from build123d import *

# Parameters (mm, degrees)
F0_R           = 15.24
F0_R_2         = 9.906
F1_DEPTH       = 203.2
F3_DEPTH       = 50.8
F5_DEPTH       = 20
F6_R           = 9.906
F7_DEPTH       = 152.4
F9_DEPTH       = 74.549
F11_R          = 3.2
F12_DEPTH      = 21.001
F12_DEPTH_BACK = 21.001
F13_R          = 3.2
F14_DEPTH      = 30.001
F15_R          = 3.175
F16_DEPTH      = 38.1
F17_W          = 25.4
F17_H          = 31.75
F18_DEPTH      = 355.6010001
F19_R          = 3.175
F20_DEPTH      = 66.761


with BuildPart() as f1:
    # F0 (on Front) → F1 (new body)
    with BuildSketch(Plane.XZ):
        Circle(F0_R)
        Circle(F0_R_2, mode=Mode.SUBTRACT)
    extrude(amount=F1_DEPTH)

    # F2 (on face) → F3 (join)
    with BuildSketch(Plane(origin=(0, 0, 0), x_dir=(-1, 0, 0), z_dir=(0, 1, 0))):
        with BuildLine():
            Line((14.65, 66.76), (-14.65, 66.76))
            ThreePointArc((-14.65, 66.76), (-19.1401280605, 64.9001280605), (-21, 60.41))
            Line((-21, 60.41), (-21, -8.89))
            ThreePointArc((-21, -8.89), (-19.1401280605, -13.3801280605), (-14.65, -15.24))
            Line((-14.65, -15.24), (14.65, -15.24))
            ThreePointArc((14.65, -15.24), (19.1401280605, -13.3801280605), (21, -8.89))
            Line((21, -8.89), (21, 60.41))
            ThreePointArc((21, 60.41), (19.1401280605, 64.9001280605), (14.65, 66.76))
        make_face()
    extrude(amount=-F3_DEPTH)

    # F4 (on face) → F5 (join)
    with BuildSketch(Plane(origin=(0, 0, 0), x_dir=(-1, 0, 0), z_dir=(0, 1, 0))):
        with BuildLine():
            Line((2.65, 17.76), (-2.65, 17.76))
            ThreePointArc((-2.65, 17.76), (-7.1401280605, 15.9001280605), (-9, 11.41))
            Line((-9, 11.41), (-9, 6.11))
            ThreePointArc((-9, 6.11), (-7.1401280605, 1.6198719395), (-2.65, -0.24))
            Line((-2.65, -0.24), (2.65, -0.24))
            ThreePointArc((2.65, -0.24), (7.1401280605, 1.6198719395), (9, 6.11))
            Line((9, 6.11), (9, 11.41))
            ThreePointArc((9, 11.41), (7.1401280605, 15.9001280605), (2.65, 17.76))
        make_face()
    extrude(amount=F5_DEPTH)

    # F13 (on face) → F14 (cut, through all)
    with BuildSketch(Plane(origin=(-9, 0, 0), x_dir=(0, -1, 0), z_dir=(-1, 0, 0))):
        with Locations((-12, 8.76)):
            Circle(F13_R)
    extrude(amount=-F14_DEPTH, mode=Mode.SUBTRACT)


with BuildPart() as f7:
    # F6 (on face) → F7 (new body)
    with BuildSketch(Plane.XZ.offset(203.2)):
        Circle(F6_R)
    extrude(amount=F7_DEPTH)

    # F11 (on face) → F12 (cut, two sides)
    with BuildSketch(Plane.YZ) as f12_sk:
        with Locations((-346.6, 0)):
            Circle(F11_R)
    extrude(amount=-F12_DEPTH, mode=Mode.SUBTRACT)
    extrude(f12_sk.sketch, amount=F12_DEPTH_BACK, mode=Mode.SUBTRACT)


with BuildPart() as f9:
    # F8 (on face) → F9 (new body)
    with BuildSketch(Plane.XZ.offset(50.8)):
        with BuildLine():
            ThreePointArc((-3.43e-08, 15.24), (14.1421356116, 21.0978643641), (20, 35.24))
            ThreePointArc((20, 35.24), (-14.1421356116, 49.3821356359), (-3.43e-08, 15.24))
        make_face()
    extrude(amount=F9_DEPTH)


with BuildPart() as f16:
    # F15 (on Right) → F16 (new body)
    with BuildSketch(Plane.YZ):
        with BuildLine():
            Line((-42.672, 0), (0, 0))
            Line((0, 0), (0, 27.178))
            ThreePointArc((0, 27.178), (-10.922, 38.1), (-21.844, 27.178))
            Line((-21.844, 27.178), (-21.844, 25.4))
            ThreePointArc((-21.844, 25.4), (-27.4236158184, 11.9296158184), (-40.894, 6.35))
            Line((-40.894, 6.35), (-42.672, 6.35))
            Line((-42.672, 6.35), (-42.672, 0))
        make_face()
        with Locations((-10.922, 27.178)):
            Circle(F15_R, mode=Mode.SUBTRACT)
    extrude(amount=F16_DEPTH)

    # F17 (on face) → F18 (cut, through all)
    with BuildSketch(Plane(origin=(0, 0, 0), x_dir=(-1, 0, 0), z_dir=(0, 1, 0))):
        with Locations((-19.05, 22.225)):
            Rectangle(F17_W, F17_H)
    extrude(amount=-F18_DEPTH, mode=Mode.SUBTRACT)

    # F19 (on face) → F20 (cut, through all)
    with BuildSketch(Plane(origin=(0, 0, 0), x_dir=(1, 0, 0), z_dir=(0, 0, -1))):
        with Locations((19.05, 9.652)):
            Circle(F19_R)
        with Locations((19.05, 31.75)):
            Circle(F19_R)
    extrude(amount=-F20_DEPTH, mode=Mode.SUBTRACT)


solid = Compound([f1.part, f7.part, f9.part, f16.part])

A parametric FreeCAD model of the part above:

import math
import FreeCAD as App
import Part
import Sketcher
from FreeCAD import Vector
Q = App.Units.Quantity


def add_polygon(sketch, points):
    """Adds a closed chain of lines whose ends are joined by coincident constraints."""
    first, n = sketch.GeometryCount, len(points)
    for a, b in zip(points, points[1:] + points[:1]):
        sketch.addGeometry(Part.LineSegment(App.Vector(*a, 0), App.Vector(*b, 0)), False)
    for i in range(n):
        sketch.addConstraint(Sketcher.Constraint("Coincident", first + i, 2, first + (i + 1) % n, 1))

doc = App.newDocument("Part")
body = doc.addObject("PartDesign::Body", "Body")

# Sketch on XZ plane
sketch1 = body.newObject("Sketcher::SketchObject", "Sketch")
sketch1.AttachmentSupport = (doc.getObject("XZ_Plane"), [""])
sketch1.MapMode = "FlatFace"
sketch1.addGeometry([
    Part.Circle(Vector(0, 0, 0), Vector(0, 0, 1), 15),
    Part.Circle(Vector(0, 0, 0), Vector(0, 0, 1), 10),
], False)
sketch1.addConstraint([
    Sketcher.Constraint("Coincident", 0, 3, -1, 1),
    Sketcher.Constraint("Coincident", 1, 3, -1, 1),
    Sketcher.Constraint("Diameter", 0, Q("1.2 in")),
    Sketcher.Constraint("Diameter", 1, Q("0.78 in")),
])
pad1 = body.newObject("PartDesign::Pad", "Pad")
pad1.Profile = sketch1
pad1.Length = Q("8 in")

# Sketch on XZ plane
sketch2 = body.newObject("Sketcher::SketchObject", "Sketch001")
sketch2.AttachmentSupport = (doc.getObject("XZ_Plane"), [""])
sketch2.MapMode = "FlatFace"
sketch2.addGeometry([
    Part.LineSegment(Vector(-15, 67, 0), Vector(15, 67, 0)),  # 0
    Part.ArcOfCircle(Part.Circle(Vector(15, 60, 0), Vector(0, 0, 1), 6), math.radians(0), math.radians(90)),  # 1
    Part.LineSegment(Vector(21, 60, 0), Vector(21, -9, 0)),  # 2
    Part.ArcOfCircle(Part.Circle(Vector(15, -9, 0), Vector(0, 0, 1), 6), math.radians(-90), math.radians(0)),  # 3
    Part.LineSegment(Vector(15, -15, 0), Vector(-15, -15, 0)),  # 4
    Part.ArcOfCircle(Part.Circle(Vector(-15, -9, 0), Vector(0, 0, 1), 6), math.radians(180), math.radians(270)),  # 5
    Part.LineSegment(Vector(-21, -9, 0), Vector(-21, 60, 0)),  # 6
    Part.ArcOfCircle(Part.Circle(Vector(-15, 60, 0), Vector(0, 0, 1), 6), math.radians(90), math.radians(180)),  # 7
], False)
sketch2.addConstraint([
    Sketcher.Constraint("Tangent", 0, 2, 1, 2),
    Sketcher.Constraint("Tangent", 1, 1, 2, 1),
    Sketcher.Constraint("Tangent", 2, 2, 3, 2),
    Sketcher.Constraint("Tangent", 3, 1, 4, 1),
    Sketcher.Constraint("Tangent", 4, 2, 5, 2),
    Sketcher.Constraint("Tangent", 5, 1, 6, 1),
    Sketcher.Constraint("Tangent", 6, 2, 7, 2),
    Sketcher.Constraint("Tangent", 7, 1, 0, 1),
    Sketcher.Constraint("Horizontal", 0),
    Sketcher.Constraint("Vertical", 2),
    Sketcher.Constraint("Horizontal", 4),
    Sketcher.Constraint("Vertical", 6),
    Sketcher.Constraint("Equal", 1, 3),
    Sketcher.Constraint("Equal", 3, 5),
    Sketcher.Constraint("Equal", 5, 7),
    Sketcher.Constraint("Radius", 1, Q("0.25 in")),
    Sketcher.Constraint("DistanceY", 3, 1, -1, 1, Q("0.6 in")),
    Sketcher.Constraint("DistanceX", 0, 1, 0, 2, Q("29.3 mm")),
    Sketcher.Constraint("DistanceY", 2, 2, 2, 1, Q("69.3 mm")),
    Sketcher.Constraint("DistanceX", -1, 1, 1, 3, Q("14.65 mm")),
])
pad2 = body.newObject("PartDesign::Pad", "Pad001")
pad2.Profile = sketch2
pad2.Length = Q("2 in")

# Sketch on XZ plane
sketch3 = body.newObject("Sketcher::SketchObject", "Sketch002")
sketch3.AttachmentSupport = (doc.getObject("XZ_Plane"), [""])
sketch3.MapMode = "FlatFace"
sketch3.addGeometry([
    Part.LineSegment(Vector(-3, 18, 0), Vector(3, 18, 0)),  # 0
    Part.ArcOfCircle(Part.Circle(Vector(3, 11, 0), Vector(0, 0, 1), 6), math.radians(0), math.radians(90)),  # 1
    Part.LineSegment(Vector(9, 11, 0), Vector(9, 6, 0)),  # 2
    Part.ArcOfCircle(Part.Circle(Vector(3, 6, 0), Vector(0, 0, 1), 6), math.radians(-90), math.radians(0)),  # 3
    Part.LineSegment(Vector(3, 0, 0), Vector(-3, 0, 0)),  # 4
    Part.ArcOfCircle(Part.Circle(Vector(-3, 6, 0), Vector(0, 0, 1), 6), math.radians(180), math.radians(270)),  # 5
    Part.LineSegment(Vector(-9, 6, 0), Vector(-9, 11, 0)),  # 6
    Part.ArcOfCircle(Part.Circle(Vector(-3, 11, 0), Vector(0, 0, 1), 6), math.radians(90), math.radians(180)),  # 7
], False)
sketch3.addConstraint([
    Sketcher.Constraint("Tangent", 0, 2, 1, 2),
    Sketcher.Constraint("Tangent", 1, 1, 2, 1),
    Sketcher.Constraint("Tangent", 2, 2, 3, 2),
    Sketcher.Constraint("Tangent", 3, 1, 4, 1),
    Sketcher.Constraint("Tangent", 4, 2, 5, 2),
    Sketcher.Constraint("Tangent", 5, 1, 6, 1),
    Sketcher.Constraint("Tangent", 6, 2, 7, 2),
    Sketcher.Constraint("Tangent", 7, 1, 0, 1),
    Sketcher.Constraint("Horizontal", 0),
    Sketcher.Constraint("Vertical", 2),
    Sketcher.Constraint("Horizontal", 4),
    Sketcher.Constraint("Vertical", 6),
    Sketcher.Constraint("Equal", 1, 3),
    Sketcher.Constraint("Equal", 3, 5),
    Sketcher.Constraint("Equal", 5, 7),
    Sketcher.Constraint("Equal", 4, 2),
    Sketcher.Constraint("Radius", 1, Q("0.25 in")),
    Sketcher.Constraint("DistanceX", 0, 1, 0, 2, Q("5.3 mm")),
    Sketcher.Constraint("DistanceX", -1, 1, 1, 3, Q("2.65 mm")),
    Sketcher.Constraint("DistanceY", -1, 1, 1, 3, Q("11.41 mm")),
])
pad3 = body.newObject("PartDesign::Pad", "Pad002")
pad3.Profile = sketch3
pad3.Length = 20
pad3.Reversed = True

# Sketch on YZ plane
sketch4 = body.newObject("Sketcher::SketchObject", "Sketch003")
sketch4.AttachmentSupport = (doc.getObject("YZ_Plane"), [""])
sketch4.MapMode = "FlatFace"
sketch4.AttachmentOffset = App.Placement(Vector(0, 0, -9), App.Rotation())
sketch4.addGeometry(Part.Circle(Vector(12, 8.8, 0), Vector(0, 0, 1), 3.2), False)
sketch4.addConstraint([
    Sketcher.Constraint("Diameter", 0, Q("6.4 mm")),
    Sketcher.Constraint("DistanceX", -1, 1, 0, 3, Q("12 mm")),
    Sketcher.Constraint("DistanceY", -1, 1, 0, 3, Q("8.76 mm")),
])
pocket1 = body.newObject("PartDesign::Pocket", "Pocket")
pocket1.Profile = sketch4
pocket1.Type = "ThroughAll"
pocket1.Reversed = True
body2 = doc.addObject("PartDesign::Body", "Body001")

# Sketch on XZ plane
sketch5 = body2.newObject("Sketcher::SketchObject", "Sketch004")
sketch5.AttachmentSupport = (doc.getObject("XZ_Plane001"), [""])
sketch5.MapMode = "FlatFace"
sketch5.AttachmentOffset = App.Placement(Vector(0, 0, 8 * 25.4), App.Rotation())
sketch5.addGeometry(Part.Circle(Vector(0, 0, 0), Vector(0, 0, 1), 10), False)
sketch5.addConstraint([
    Sketcher.Constraint("Coincident", 0, 3, -1, 1),
    Sketcher.Constraint("Diameter", 0, Q("0.78 in")),
])
pad4 = body2.newObject("PartDesign::Pad", "Pad003")
pad4.Profile = sketch5
pad4.Length = Q("6 in")

# Sketch on YZ plane
sketch6 = body2.newObject("Sketcher::SketchObject", "Sketch005")
sketch6.AttachmentSupport = (doc.getObject("YZ_Plane001"), [""])
sketch6.MapMode = "FlatFace"
sketch6.addGeometry(Part.Circle(Vector(-346.6, 0, 0), Vector(0, 0, 1), 3.2), False)
sketch6.addConstraint([
    Sketcher.Constraint("PointOnObject", 0, 3, -1),
    Sketcher.Constraint("Diameter", 0, Q("6.4 mm")),
    Sketcher.Constraint("DistanceX", 0, 3, -1, 1, Q("346.6 mm")),
])
pocket2 = body2.newObject("PartDesign::Pocket", "Pocket001")
pocket2.Profile = sketch6
pocket2.Type = "ThroughAll"
pocket2.Midplane = True
body3 = doc.addObject("PartDesign::Body", "Body002")

# Sketch on XZ plane
sketch7 = body3.newObject("Sketcher::SketchObject", "Sketch006")
sketch7.AttachmentSupport = (doc.getObject("XZ_Plane002"), [""])
sketch7.MapMode = "FlatFace"
sketch7.AttachmentOffset = App.Placement(Vector(0, 0, 2 * 25.4), App.Rotation())
sketch7.addGeometry([
    Part.ArcOfCircle(Part.Circle(Vector(0, 35, 0), Vector(0, 0, 1), 20), math.radians(-90), math.radians(0)),
    Part.ArcOfCircle(Part.Circle(Vector(0, 35, 0), Vector(0, 0, 1), 20), math.radians(0), math.radians(270)),
], False)
sketch7.addConstraint([
    Sketcher.Constraint("Tangent", 0, 1, 1, 2),
    Sketcher.Constraint("Coincident", 1, 1, 0, 2),
    Sketcher.Constraint("PointOnObject", 0, 3, -2),
    Sketcher.Constraint("PointOnObject", 0, 1, -2),
    Sketcher.Constraint("Horizontal", 0, 3, 1, 1),
    Sketcher.Constraint("DistanceY", -1, 1, 0, 1, Q("0.6 in")),
    Sketcher.Constraint("Radius", 0, Q("20 mm")),
])
pad5 = body3.newObject("PartDesign::Pad", "Pad004")
pad5.Profile = sketch7
pad5.Length = Q("2.935 in")
body4 = doc.addObject("PartDesign::Body", "Body003")

# Sketch on YZ plane
sketch8 = body4.newObject("Sketcher::SketchObject", "Sketch007")
sketch8.AttachmentSupport = (doc.getObject("YZ_Plane003"), [""])
sketch8.MapMode = "FlatFace"
sketch8.addGeometry([
    Part.LineSegment(Vector(-42.7, 0, 0), Vector(0, 0, 0)),  # 0
    Part.LineSegment(Vector(0, 0, 0), Vector(0, 27.2, 0)),  # 1
    Part.ArcOfCircle(Part.Circle(Vector(-10.9, 27.2, 0), Vector(0, 0, 1), 10.9), math.radians(0), math.radians(180)),  # 2
    Part.LineSegment(Vector(-21.8, 27.2, 0), Vector(-21.8, 25.4, 0)),  # 3
    Part.ArcOfCircle(Part.Circle(Vector(-40.9, 25.4, 0), Vector(0, 0, 1), 19.1), math.radians(-90), math.radians(0)),  # 4
    Part.LineSegment(Vector(-40.9, 6.3, 0), Vector(-42.7, 6.3, 0)),  # 5
    Part.LineSegment(Vector(-42.7, 6.3, 0), Vector(-42.7, 0, 0)),  # 6
    Part.Circle(Vector(-10.9, 27.2, 0), Vector(0, 0, 1), 3.2),  # 7
], False)
sketch8.addConstraint([
    Sketcher.Constraint("Coincident", 0, 2, 1, 1),
    Sketcher.Constraint("Tangent", 1, 2, 2, 1),
    Sketcher.Constraint("Tangent", 2, 2, 3, 1),
    Sketcher.Constraint("Tangent", 3, 2, 4, 2),
    Sketcher.Constraint("Tangent", 4, 1, 5, 1),
    Sketcher.Constraint("Coincident", 5, 2, 6, 1),
    Sketcher.Constraint("Coincident", 6, 2, 0, 1),
    Sketcher.Constraint("Horizontal", 0),
    Sketcher.Constraint("Vertical", 1),
    Sketcher.Constraint("Vertical", 3),
    Sketcher.Constraint("Horizontal", 5),
    Sketcher.Constraint("Vertical", 6),
    Sketcher.Constraint("Coincident", 0, 2, -1, 1),
    Sketcher.Constraint("Coincident", 7, 3, 2, 3),
    Sketcher.Constraint("Equal", 5, 3),
    Sketcher.Constraint("Diameter", 7, Q("0.25 in")),
    Sketcher.Constraint("Radius", 2, Q("0.43 in")),
    Sketcher.Constraint("Radius", 4, Q("0.75 in")),
    Sketcher.Constraint("DistanceY", -1, 1, 4, 3, Q("1 in")),
    Sketcher.Constraint("DistanceX", 0, 1, 0, 2, Q("1.68 in")),
])
pad6 = body4.newObject("PartDesign::Pad", "Pad005")
pad6.Profile = sketch8
pad6.Length = Q("1.5 in")

# Sketch on XZ plane
sketch9 = body4.newObject("Sketcher::SketchObject", "Sketch008")
sketch9.AttachmentSupport = (doc.getObject("XZ_Plane003"), [""])
sketch9.MapMode = "FlatFace"
add_polygon(sketch9, [(32, 38), (32, 6), (6, 6), (6, 38)])  # lines 0-3
sketch9.addConstraint([
    Sketcher.Constraint("Vertical", 0),
    Sketcher.Constraint("Horizontal", 1),
    Sketcher.Constraint("Vertical", 2),
    Sketcher.Constraint("Horizontal", 3),
    Sketcher.Constraint("DistanceX", 1, 2, 1, 1, Q("1 in")),
    Sketcher.Constraint("DistanceY", 0, 2, 0, 1, Q("1.25 in")),
    Sketcher.Constraint("DistanceY", -1, 1, 2, 2, Q("1.5 in")),
    Sketcher.Constraint("DistanceX", -1, 1, 0, 2, Q("1.25 in")),
])
pocket3 = body4.newObject("PartDesign::Pocket", "Pocket002")
pocket3.Profile = sketch9
pocket3.Type = "ThroughAll"
pocket3.Reversed = True

# Sketch on XY plane
sketch10 = body4.newObject("Sketcher::SketchObject", "Sketch009")
sketch10.AttachmentSupport = (doc.getObject("XY_Plane003"), [""])
sketch10.MapMode = "FlatFace"
sketch10.addGeometry([
    Part.Circle(Vector(19.1, -9.7, 0), Vector(0, 0, 1), 3.2),
    Part.Circle(Vector(19.1, -31.8, 0), Vector(0, 0, 1), 3.2),
], False)
sketch10.addConstraint([
    Sketcher.Constraint("Equal", 0, 1),
    Sketcher.Constraint("Vertical", 0, 3, 1, 3),
    Sketcher.Constraint("Diameter", 0, Q("0.25 in")),
    Sketcher.Constraint("DistanceX", -1, 1, 0, 3, Q("0.75 in")),
    Sketcher.Constraint("DistanceY", 0, 3, -1, 1, Q("0.38 in")),
    Sketcher.Constraint("DistanceY", 1, 3, -1, 1, Q("1.25 in")),
])
pocket4 = body4.newObject("PartDesign::Pocket", "Pocket003")
pocket4.Profile = sketch10
pocket4.Type = "ThroughAll"
pocket4.Reversed = True

doc.recompute()
